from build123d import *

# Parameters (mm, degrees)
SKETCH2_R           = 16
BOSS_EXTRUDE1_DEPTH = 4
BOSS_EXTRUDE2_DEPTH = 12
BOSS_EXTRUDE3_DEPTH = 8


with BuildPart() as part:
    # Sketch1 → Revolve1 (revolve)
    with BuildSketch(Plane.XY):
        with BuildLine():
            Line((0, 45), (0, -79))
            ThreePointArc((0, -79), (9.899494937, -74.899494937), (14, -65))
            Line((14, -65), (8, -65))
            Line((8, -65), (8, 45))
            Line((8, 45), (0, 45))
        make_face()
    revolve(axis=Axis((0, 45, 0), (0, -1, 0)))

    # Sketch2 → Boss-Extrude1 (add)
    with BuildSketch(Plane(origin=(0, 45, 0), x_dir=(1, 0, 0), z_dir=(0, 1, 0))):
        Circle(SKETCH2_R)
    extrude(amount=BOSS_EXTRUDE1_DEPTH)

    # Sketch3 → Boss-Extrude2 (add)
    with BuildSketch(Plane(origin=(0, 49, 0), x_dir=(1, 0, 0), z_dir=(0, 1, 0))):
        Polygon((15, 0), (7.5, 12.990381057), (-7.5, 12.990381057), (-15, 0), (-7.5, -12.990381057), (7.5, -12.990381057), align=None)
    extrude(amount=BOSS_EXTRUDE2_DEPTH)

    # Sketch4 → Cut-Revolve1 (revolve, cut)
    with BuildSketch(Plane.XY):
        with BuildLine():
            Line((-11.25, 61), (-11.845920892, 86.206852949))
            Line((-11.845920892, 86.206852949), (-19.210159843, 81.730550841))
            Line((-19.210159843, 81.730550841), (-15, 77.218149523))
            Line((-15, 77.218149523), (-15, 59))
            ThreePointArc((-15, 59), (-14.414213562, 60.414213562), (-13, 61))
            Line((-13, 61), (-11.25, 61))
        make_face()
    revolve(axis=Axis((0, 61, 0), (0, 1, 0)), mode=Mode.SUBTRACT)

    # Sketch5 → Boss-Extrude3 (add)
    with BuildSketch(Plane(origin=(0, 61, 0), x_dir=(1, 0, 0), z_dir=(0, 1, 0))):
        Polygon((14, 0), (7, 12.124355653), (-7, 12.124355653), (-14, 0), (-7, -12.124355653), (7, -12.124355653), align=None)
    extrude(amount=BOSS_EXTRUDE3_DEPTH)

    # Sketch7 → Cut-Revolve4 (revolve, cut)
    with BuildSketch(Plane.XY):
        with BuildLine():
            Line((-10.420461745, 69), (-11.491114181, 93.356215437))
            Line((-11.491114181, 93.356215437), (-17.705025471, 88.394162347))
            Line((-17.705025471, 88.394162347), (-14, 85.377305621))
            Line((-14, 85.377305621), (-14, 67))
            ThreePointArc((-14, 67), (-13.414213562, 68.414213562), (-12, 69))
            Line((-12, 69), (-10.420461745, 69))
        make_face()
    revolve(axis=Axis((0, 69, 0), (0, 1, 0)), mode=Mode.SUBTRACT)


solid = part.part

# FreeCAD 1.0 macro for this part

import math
import FreeCAD as App
import Part
import Sketcher
from FreeCAD import Vector
Q = App.Units.Quantity

doc = App.newDocument("Part")
body = doc.addObject("PartDesign::Body", "Body")

sketch1 = body.newObject("Sketcher::SketchObject", "Sketch")
sketch1.AttachmentSupport = (doc.getObject("XY_Plane"), [""])
sketch1.MapMode = "FlatFace"
sketch1.addGeometry([
    Part.LineSegment(Vector(0, 45, 0), Vector(0, -79, 0)),
    Part.ArcOfCircle(Part.Circle(Vector(0, -65, 0), Vector(0, 0, 1), 14), math.radians(-90), math.radians(0)),
    Part.LineSegment(Vector(14, -65, 0), Vector(8, -65, 0)),
    Part.LineSegment(Vector(8, -65, 0), Vector(8, 45, 0)),
    Part.LineSegment(Vector(8, 45, 0), Vector(0, 45, 0)),
], False)
sketch1.addConstraint([
    Sketcher.Constraint("Coincident", 0, 2, 1, 1),
    Sketcher.Constraint("Coincident", 1, 2, 2, 1),
    Sketcher.Constraint("Coincident", 2, 2, 3, 1),
    Sketcher.Constraint("Coincident", 3, 2, 4, 1),
    Sketcher.Constraint("Coincident", 4, 2, 0, 1),
    Sketcher.Constraint("Vertical", 0),
    Sketcher.Constraint("Horizontal", 2),
    Sketcher.Constraint("Vertical", 3),
    Sketcher.Constraint("Horizontal", 4),
    Sketcher.Constraint("PointOnObject", 1, 3, -2),
    Sketcher.Constraint("PointOnObject", 0, 2, -2),
    Sketcher.Constraint("Radius", 1, Q("14 mm")),
    Sketcher.Constraint("DistanceX", 2, 2, 2, 1, Q("6 mm")),
    Sketcher.Constraint("DistanceY", 0, 2, 0, 1, Q("124 mm")),
    Sketcher.Constraint("DistanceY", 3, 1, 3, 2, Q("110 mm")),
    Sketcher.Constraint("DistanceY", 1, 3, -1, 1, Q("65 mm")),
])
revolution = body.newObject("PartDesign::Revolution", "Revolution")
revolution.Profile = sketch1
revolution.ReferenceAxis = (sketch1, ["V_Axis"])
revolution.Angle = 360

sketch2 = body.newObject("Sketcher::SketchObject", "Sketch001")
sketch2.AttachmentSupport = (doc.getObject("XZ_Plane"), [""])
sketch2.MapMode = "FlatFace"
sketch2.AttachmentOffset = App.Placement(Vector(0, 0, -45), App.Rotation())
sketch2.addGeometry(Part.Circle(Vector(0, 0, 0), Vector(0, 0, 1), 16), False)
sketch2.addConstraint([
    Sketcher.Constraint("Coincident", 0, 3, -1, 1),
    Sketcher.Constraint("Diameter", 0, Q("32 mm")),
])
pad1 = body.newObject("PartDesign::Pad", "Pad")
pad1.Profile = sketch2
pad1.Length = 4
pad1.Reversed = True

sketch3 = body.newObject("Sketcher::SketchObject", "Sketch002")
sketch3.AttachmentSupport = (doc.getObject("XZ_Plane"), [""])
sketch3.MapMode = "FlatFace"
sketch3.AttachmentOffset = App.Placement(Vector(0, 0, -49), App.Rotation())
sketch3.addGeometry([
    Part.LineSegment(Vector(15, 0, 0), Vector(8, -13, 0)),
    Part.LineSegment(Vector(8, -13, 0), Vector(-8, -13, 0)),
    Part.LineSegment(Vector(-8, -13, 0), Vector(-15, 0, 0)),
    Part.LineSegment(Vector(-15, 0, 0), Vector(-8, 13, 0)),
    Part.LineSegment(Vector(-8, 13, 0), Vector(8, 13, 0)),
    Part.LineSegment(Vector(8, 13, 0), Vector(15, 0, 0)),
], False)
sketch3.addConstraint([
    Sketcher.Constraint("Coincident", 0, 2, 1, 1),
    Sketcher.Constraint("Coincident", 1, 2, 2, 1),
    Sketcher.Constraint("Coincident", 2, 2, 3, 1),
    Sketcher.Constraint("Coincident", 3, 2, 4, 1),
    Sketcher.Constraint("Coincident", 4, 2, 5, 1),
    Sketcher.Constraint("Coincident", 5, 2, 0, 1),
    Sketcher.Constraint("Horizontal", 1),
    Sketcher.Constraint("Horizontal", 4),
    Sketcher.Constraint("Symmetric", 0, 2, 3, 2, -1, 1),
    Sketcher.Constraint("Symmetric", 2, 2, 5, 2, -1, 1),
    Sketcher.Constraint("PointOnObject", 2, 2, -1),
    Sketcher.Constraint("Parallel", 2, 5),
    Sketcher.Constraint("Vertical", 1, 2, 3, 2),
    Sketcher.Constraint("DistanceX", 1, 2, 1, 1, Q("15 mm")),
    Sketcher.Constraint("Angle", 0, Q("-120 deg")),
    Sketcher.Constraint("Distance", 0, Q("15 mm")),
])
pad2 = body.newObject("PartDesign::Pad", "Pad001")
pad2.Profile = sketch3
pad2.Length = 12
pad2.Reversed = True

sketch4 = body.newObject("Sketcher::SketchObject", "Sketch003")
sketch4.AttachmentSupport = (doc.getObject("XY_Plane"), [""])
sketch4.MapMode = "FlatFace"
sketch4.addGeometry([
    Part.LineSegment(Vector(-11.2, 61, 0), Vector(-11.8, 86.2, 0)),
    Part.LineSegment(Vector(-11.8, 86.2, 0), Vector(-19.2, 81.7, 0)),
    Part.LineSegment(Vector(-19.2, 81.7, 0), Vector(-15, 77.2, 0)),
    Part.LineSegment(Vector(-15, 77.2, 0), Vector(-15, 59, 0)),
    Part.ArcOfCircle(Part.Circle(Vector(-13, 59, 0), Vector(0, 0, 1), 2), math.radians(90), math.radians(180)),
    Part.LineSegment(Vector(-13, 61, 0), Vector(-11.2, 61, 0)),
], False)
sketch4.addConstraint([
    Sketcher.Constraint("Coincident", 0, 2, 1, 1),
    Sketcher.Constraint("Coincident", 1, 2, 2, 1),
    Sketcher.Constraint("Coincident", 2, 2, 3, 1),
    Sketcher.Constraint("Tangent", 3, 2, 4, 2),
    Sketcher.Constraint("Tangent", 4, 1, 5, 1),
    Sketcher.Constraint("Coincident", 5, 2, 0, 1),
    Sketcher.Constraint("Vertical", 3),
    Sketcher.Constraint("Horizontal", 5),
    Sketcher.Constraint("Radius", 4, Q("2 mm")),
    Sketcher.Constraint("DistanceX", 4, 3, -1, 1, Q("13 mm")),
    Sketcher.Constraint("DistanceY", -1, 1, 4, 3, Q("59 mm")),
    Sketcher.Constraint("DistanceX", 5, 1, 5, 2, Q("1.75 mm")),
    Sketcher.Constraint("DistanceY", 3, 2, 3, 1, Q("18.21815 mm")),
    Sketcher.Constraint("DistanceY", 2, 2, 1, 2, Q("4.512401 mm")),
    Sketcher.Constraint("DistanceX", 0, 2, -1, 1, Q("11.845921 mm")),
    Sketcher.Constraint("DistanceX", 1, 2, -1, 1, Q("19.21016 mm")),
    Sketcher.Constraint("Distance", 0, Q("25.213896 mm")),
])
groove = body.newObject("PartDesign::Groove", "Groove")
groove.Profile = sketch4
groove.ReferenceAxis = (sketch4, ["V_Axis"])
groove.Angle = 360

sketch5 = body.newObject("Sketcher::SketchObject", "Sketch004")
sketch5.AttachmentSupport = (doc.getObject("XZ_Plane"), [""])
sketch5.MapMode = "FlatFace"
sketch5.AttachmentOffset = App.Placement(Vector(0, 0, -61), App.Rotation())
sketch5.addGeometry([
    Part.LineSegment(Vector(14, 0, 0), Vector(7, -12, 0)),
    Part.LineSegment(Vector(7, -12, 0), Vector(-7, -12, 0)),
    Part.LineSegment(Vector(-7, -12, 0), Vector(-14, 0, 0)),
    Part.LineSegment(Vector(-14, 0, 0), Vector(-7, 12, 0)),
    Part.LineSegment(Vector(-7, 12, 0), Vector(7, 12, 0)),
    Part.LineSegment(Vector(7, 12, 0), Vector(14, 0, 0)),
], False)
sketch5.addConstraint([
    Sketcher.Constraint("Coincident", 0, 2, 1, 1),
    Sketcher.Constraint("Coincident", 1, 2, 2, 1),
    Sketcher.Constraint("Coincident", 2, 2, 3, 1),
    Sketcher.Constraint("Coincident", 3, 2, 4, 1),
    Sketcher.Constraint("Coincident", 4, 2, 5, 1),
    Sketcher.Constraint("Coincident", 5, 2, 0, 1),
    Sketcher.Constraint("Horizontal", 1),
    Sketcher.Constraint("Horizontal", 4),
    Sketcher.Constraint("Symmetric", 0, 2, 3, 2, -1, 1),
    Sketcher.Constraint("Symmetric", 2, 2, 5, 2, -1, 1),
    Sketcher.Constraint("PointOnObject", 2, 2, -1),
    Sketcher.Constraint("Parallel", 2, 5),
    Sketcher.Constraint("Vertical", 1, 2, 3, 2),
    Sketcher.Constraint("DistanceX", 1, 2, 1, 1, Q("14 mm")),
    Sketcher.Constraint("Angle", 0, Q("-120 deg")),
    Sketcher.Constraint("Distance", 0, Q("14 mm")),
])
pad3 = body.newObject("PartDesign::Pad", "Pad002")
pad3.Profile = sketch5
pad3.Length = 8
pad3.Reversed = True

sketch6 = body.newObject("Sketcher::SketchObject", "Sketch005")
sketch6.AttachmentSupport = (doc.getObject("XY_Plane"), [""])
sketch6.MapMode = "FlatFace"
sketch6.addGeometry([
    Part.LineSegment(Vector(-10.4, 69, 0), Vector(-11.5, 93.4, 0)),
    Part.LineSegment(Vector(-11.5, 93.4, 0), Vector(-17.7, 88.4, 0)),
    Part.LineSegment(Vector(-17.7, 88.4, 0), Vector(-14, 85.4, 0)),
    Part.LineSegment(Vector(-14, 85.4, 0), Vector(-14, 67, 0)),
    Part.ArcOfCircle(Part.Circle(Vector(-12, 67, 0), Vector(0, 0, 1), 2), math.radians(90), math.radians(180)),
    Part.LineSegment(Vector(-12, 69, 0), Vector(-10.4, 69, 0)),
], False)
sketch6.addConstraint([
    Sketcher.Constraint("Coincident", 0, 2, 1, 1),
    Sketcher.Constraint("Coincident", 1, 2, 2, 1),
    Sketcher.Constraint("Coincident", 2, 2, 3, 1),
    Sketcher.Constraint("Tangent", 3, 2, 4, 2),
    Sketcher.Constraint("Tangent", 4, 1, 5, 1),
    Sketcher.Constraint("Coincident", 5, 2, 0, 1),
    Sketcher.Constraint("Vertical", 3),
    Sketcher.Constraint("Horizontal", 5),
    Sketcher.Constraint("Radius", 4, Q("2 mm")),
    Sketcher.Constraint("DistanceX", 4, 3, -1, 1, Q("12 mm")),
    Sketcher.Constraint("DistanceY", -1, 1, 4, 3, Q("67 mm")),
    Sketcher.Constraint("DistanceX", 5, 1, 5, 2, Q("1.579538 mm")),
    Sketcher.Constraint("DistanceY", 3, 2, 3, 1, Q("18.377306 mm")),
    Sketcher.Constraint("DistanceX", 1, 2, 0, 2, Q("6.213911 mm")),
    Sketcher.Constraint("DistanceY", 2, 2, 0, 2, Q("7.97891 mm")),
    Sketcher.Constraint("Distance", 0, Q("24.379736 mm")),
    Sketcher.Constraint("Distance", 1, Q("7.952023 mm")),
])
groove2 = body.newObject("PartDesign::Groove", "Groove001")
groove2.Profile = sketch6
groove2.ReferenceAxis = (sketch6, ["V_Axis"])
groove2.Angle = 360

doc.recompute()
